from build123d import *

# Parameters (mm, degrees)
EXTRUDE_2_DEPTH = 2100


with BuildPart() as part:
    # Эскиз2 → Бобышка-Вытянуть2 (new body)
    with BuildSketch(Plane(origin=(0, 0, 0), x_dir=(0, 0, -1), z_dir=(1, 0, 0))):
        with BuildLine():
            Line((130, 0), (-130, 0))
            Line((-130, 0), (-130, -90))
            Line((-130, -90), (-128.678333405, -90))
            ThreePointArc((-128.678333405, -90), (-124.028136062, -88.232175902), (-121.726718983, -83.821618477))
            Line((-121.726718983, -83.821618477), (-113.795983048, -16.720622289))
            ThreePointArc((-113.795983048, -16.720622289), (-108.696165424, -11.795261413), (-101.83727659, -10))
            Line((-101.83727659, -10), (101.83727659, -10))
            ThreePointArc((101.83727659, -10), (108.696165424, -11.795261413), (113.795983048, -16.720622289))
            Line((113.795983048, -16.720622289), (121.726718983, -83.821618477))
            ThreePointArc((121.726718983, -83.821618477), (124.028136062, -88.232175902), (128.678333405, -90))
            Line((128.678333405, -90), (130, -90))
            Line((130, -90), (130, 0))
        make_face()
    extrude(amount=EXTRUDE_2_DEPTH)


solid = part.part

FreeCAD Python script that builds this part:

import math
import FreeCAD as App
import Part
import Sketcher
from FreeCAD import Vector

doc = App.newDocument("Part")
params = doc.addObject("Spreadsheet::Sheet", "Params")
for row, (alias, value) in enumerate([
    ("sketch1_radius", "7 mm"),
    ("sketch1_radius2", "14 mm"),
    ("sketch1_width", "90 mm"),
    ("sketch1_height", "260 mm"),
    ("pad1_length", "2100 mm"),
], start=1):
    params.set(f"A{row}", alias)
    params.set(f"B{row}", "=" + value)
    params.setAlias(f"B{row}", alias)

body = doc.addObject("PartDesign::Body", "Body")

# Sketch on YZ plane
sketch1 = doc.addObject("Sketcher::SketchObject", "Sketch")
body.addObject(sketch1)
sketch1.AttachmentSupport = (doc.YZ_Plane, [""])
sketch1.MapMode = "FlatFace"
sketch1.addGeometry(Part.LineSegment(Vector(0, -130, 0), Vector(0, 130, 0)), False)
sketch1.addGeometry(Part.LineSegment(Vector(0, 130, 0), Vector(-90, 130, 0)), False)
sketch1.addGeometry(Part.LineSegment(Vector(-90, 130, 0), Vector(-90, 128.7, 0)), False)
sketch1.addGeometry(Part.ArcOfCircle(Part.Circle(Vector(-83, 128.7, 0), Vector(0, 0, 1), 7), math.radians(180), math.radians(263)), False)
sketch1.addGeometry(Part.LineSegment(Vector(-83.8, 121.7, 0), Vector(-16.7, 113.8, 0)), False)
sketch1.addGeometry(Part.ArcOfCircle(Part.Circle(Vector(-24, 101.8, 0), Vector(0, 0, 1), 14), math.radians(0), math.radians(59)), False)
sketch1.addGeometry(Part.LineSegment(Vector(-10, 101.8, 0), Vector(-10, -101.8, 0)), False)
sketch1.addGeometry(Part.ArcOfCircle(Part.Circle(Vector(-24, -101.8, 0), Vector(0, 0, 1), 14), math.radians(-59), math.radians(0)), False)
sketch1.addGeometry(Part.LineSegment(Vector(-16.7, -113.8, 0), Vector(-83.8, -121.7, 0)), False)
sketch1.addGeometry(Part.ArcOfCircle(Part.Circle(Vector(-83, -128.7, 0), Vector(0, 0, 1), 7), math.radians(97), math.radians(180)), False)
sketch1.addGeometry(Part.LineSegment(Vector(-90, -128.7, 0), Vector(-90, -130, 0)), False)
sketch1.addGeometry(Part.LineSegment(Vector(-90, -130, 0), Vector(0, -130, 0)), False)
sketch1.addConstraint(Sketcher.Constraint("Coincident", 0, 2, 1, 1))
sketch1.addConstraint(Sketcher.Constraint("Coincident", 1, 2, 2, 1))
sketch1.addConstraint(Sketcher.Constraint("Tangent", 2, 2, 3, 1))
sketch1.addConstraint(Sketcher.Constraint("Tangent", 3, 2, 4, 1))
sketch1.addConstraint(Sketcher.Constraint("Coincident", 4, 2, 5, 2))
sketch1.addConstraint(Sketcher.Constraint("Tangent", 5, 1, 6, 1))
sketch1.addConstraint(Sketcher.Constraint("Tangent", 6, 2, 7, 2))
sketch1.addConstraint(Sketcher.Constraint("Coincident", 7, 1, 8, 1))
sketch1.addConstraint(Sketcher.Constraint("Tangent", 8, 2, 9, 1))
sketch1.addConstraint(Sketcher.Constraint("Tangent", 9, 2, 10, 1))
sketch1.addConstraint(Sketcher.Constraint("Coincident", 10, 2, 11, 1))
sketch1.addConstraint(Sketcher.Constraint("Coincident", 11, 2, 0, 1))
sketch1.addConstraint(Sketcher.Constraint("Vertical", 0))
sketch1.addConstraint(Sketcher.Constraint("Horizontal", 1))
sketch1.addConstraint(Sketcher.Constraint("Vertical", 2))
sketch1.addConstraint(Sketcher.Constraint("Vertical", 6))
sketch1.addConstraint(Sketcher.Constraint("Vertical", 10))
sketch1.addConstraint(Sketcher.Constraint("Horizontal", 11))
sketch1.addConstraint(Sketcher.Constraint("Equal", 5, 7))
sketch1.addConstraint(Sketcher.Constraint("Equal", 3, 9))
sketch1.addConstraint(Sketcher.Constraint("Symmetric", 0, 2, 11, 2, -1, 1))
sketch1.addConstraint(Sketcher.Constraint("Symmetric", 3, 3, 9, 3, -1))
sketch1.addConstraint(Sketcher.Constraint("Symmetric", 4, 2, 7, 1, -1))
sketch1.addConstraint(Sketcher.Constraint("Radius", 3, 7.0))
sketch1.addConstraint(Sketcher.Constraint("Radius", 5, 14.0))
sketch1.addConstraint(Sketcher.Constraint("DistanceX", 1, 2, 1, 1, 90.0))
sketch1.addConstraint(Sketcher.Constraint("DistanceY", 0, 1, 0, 2, 260.0))
sketch1.addConstraint(Sketcher.Constraint("DistanceX", 5, 3, -1, 1, 24.0))
sketch1.addConstraint(Sketcher.Constraint("Distance", 4, 67.568042))
sketch1.addConstraint(Sketcher.Constraint("DistanceY", 2, 2, 2, 1, 1.321667))
sketch1.addConstraint(Sketcher.Constraint("DistanceY", 6, 2, 6, 1, 203.674553))
sketch1.setExpression("Constraints[23]", "Params.sketch1_radius")
sketch1.setExpression("Constraints[24]", "Params.sketch1_radius2")
sketch1.setExpression("Constraints[25]", "Params.sketch1_width")
sketch1.setExpression("Constraints[26]", "Params.sketch1_height")
pad1 = doc.addObject("PartDesign::Pad", "Pad")
body.addObject(pad1)
pad1.Profile = sketch1
pad1.setExpression("Length", "Params.pad1_length")

doc.recompute()
